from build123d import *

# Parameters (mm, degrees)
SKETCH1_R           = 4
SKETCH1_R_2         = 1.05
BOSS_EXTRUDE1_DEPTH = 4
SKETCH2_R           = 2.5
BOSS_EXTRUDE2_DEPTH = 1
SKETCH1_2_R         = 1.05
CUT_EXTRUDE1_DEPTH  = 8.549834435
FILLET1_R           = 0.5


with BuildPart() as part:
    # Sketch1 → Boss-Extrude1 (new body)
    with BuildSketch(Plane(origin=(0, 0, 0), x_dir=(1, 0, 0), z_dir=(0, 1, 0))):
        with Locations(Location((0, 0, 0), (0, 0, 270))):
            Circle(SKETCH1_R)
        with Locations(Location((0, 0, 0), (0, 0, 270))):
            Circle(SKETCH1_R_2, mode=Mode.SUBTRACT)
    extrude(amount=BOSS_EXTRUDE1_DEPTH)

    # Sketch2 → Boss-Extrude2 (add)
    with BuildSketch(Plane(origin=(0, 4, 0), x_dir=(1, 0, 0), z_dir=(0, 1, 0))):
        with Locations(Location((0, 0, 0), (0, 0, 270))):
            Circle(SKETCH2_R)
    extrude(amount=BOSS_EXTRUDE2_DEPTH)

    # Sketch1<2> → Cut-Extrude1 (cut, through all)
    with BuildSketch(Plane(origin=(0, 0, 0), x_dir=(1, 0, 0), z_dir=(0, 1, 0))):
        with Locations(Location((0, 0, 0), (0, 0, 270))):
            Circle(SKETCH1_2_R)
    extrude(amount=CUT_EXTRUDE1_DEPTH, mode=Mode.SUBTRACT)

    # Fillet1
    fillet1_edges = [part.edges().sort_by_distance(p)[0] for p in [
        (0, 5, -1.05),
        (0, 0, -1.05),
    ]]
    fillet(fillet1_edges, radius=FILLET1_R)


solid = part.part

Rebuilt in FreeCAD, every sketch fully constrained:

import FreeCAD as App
import Part
import Sketcher

V = App.Vector
Q = App.Units.Quantity


def edges_at(feature, points):
    """Names of the edges that pass closest to the given points."""
    edges = feature.Shape.Edges
    near = lambda p: min(range(len(edges)), key=lambda i: edges[i].distToShape(Part.Vertex(*p))[0])
    return sorted({f"Edge{near(p) + 1}" for p in points})

doc = App.newDocument("Part")
body = doc.addObject("PartDesign::Body", "Body")

# Sketch on XZ plane
sketch1 = doc.addObject("Sketcher::SketchObject", "Sketch")
body.addObject(sketch1)
sketch1.AttachmentSupport = (doc.XZ_Plane, [""])
sketch1.MapMode = "FlatFace"
sketch1.addGeometry(Part.Circle(V(0, 0, 0), V(0, 0, 1), 4), False)
sketch1.addGeometry(Part.Circle(V(0, 0, 0), V(0, 0, 1), 1.1), False)
sketch1.addConstraint(Sketcher.Constraint("Coincident", 0, 3, -1, 1))
sketch1.addConstraint(Sketcher.Constraint("Coincident", 1, 3, -1, 1))
sketch1.addConstraint(Sketcher.Constraint("Diameter", 0, Q("8 mm")))
sketch1.addConstraint(Sketcher.Constraint("Diameter", 1, Q("2.1 mm")))
pad1 = doc.addObject("PartDesign::Pad", "Pad")
body.addObject(pad1)
pad1.Profile = sketch1
pad1.Length = 4
pad1.Reversed = True

# Sketch on XZ plane
sketch2 = doc.addObject("Sketcher::SketchObject", "Sketch001")
body.addObject(sketch2)
sketch2.AttachmentSupport = (doc.XZ_Plane, [""])
sketch2.MapMode = "FlatFace"
sketch2.AttachmentOffset = App.Placement(V(0, 0, -4), App.Rotation())
sketch2.addGeometry(Part.Circle(V(0, 0, 0), V(0, 0, 1), 2.5), False)
sketch2.addConstraint(Sketcher.Constraint("Coincident", 0, 3, -1, 1))
sketch2.addConstraint(Sketcher.Constraint("Diameter", 0, Q("5 mm")))
pad2 = doc.addObject("PartDesign::Pad", "Pad001")
body.addObject(pad2)
pad2.Profile = sketch2
pad2.Length = 1
pad2.Reversed = True

# Sketch on XZ plane
sketch3 = doc.addObject("Sketcher::SketchObject", "Sketch002")
body.addObject(sketch3)
sketch3.AttachmentSupport = (doc.XZ_Plane, [""])
sketch3.MapMode = "FlatFace"
sketch3.addGeometry(Part.Circle(V(0, 0, 0), V(0, 0, 1), 1.1), False)
sketch3.addConstraint(Sketcher.Constraint("Coincident", 0, 3, -1, 1))
sketch3.addConstraint(Sketcher.Constraint("Diameter", 0, Q("2.1 mm")))
pocket1 = doc.addObject("PartDesign::Pocket", "Pocket")
body.addObject(pocket1)
pocket1.Profile = sketch3
pocket1.Type = "ThroughAll"
doc.recompute()

fillet = doc.addObject("PartDesign::Fillet", "Fillet")
body.addObject(fillet)
fillet.Base = (pocket1, edges_at(pocket1, [(0, 5, -1.05), (0, 0, -1.05)]))
fillet.Radius = 0.5

doc.recompute()
